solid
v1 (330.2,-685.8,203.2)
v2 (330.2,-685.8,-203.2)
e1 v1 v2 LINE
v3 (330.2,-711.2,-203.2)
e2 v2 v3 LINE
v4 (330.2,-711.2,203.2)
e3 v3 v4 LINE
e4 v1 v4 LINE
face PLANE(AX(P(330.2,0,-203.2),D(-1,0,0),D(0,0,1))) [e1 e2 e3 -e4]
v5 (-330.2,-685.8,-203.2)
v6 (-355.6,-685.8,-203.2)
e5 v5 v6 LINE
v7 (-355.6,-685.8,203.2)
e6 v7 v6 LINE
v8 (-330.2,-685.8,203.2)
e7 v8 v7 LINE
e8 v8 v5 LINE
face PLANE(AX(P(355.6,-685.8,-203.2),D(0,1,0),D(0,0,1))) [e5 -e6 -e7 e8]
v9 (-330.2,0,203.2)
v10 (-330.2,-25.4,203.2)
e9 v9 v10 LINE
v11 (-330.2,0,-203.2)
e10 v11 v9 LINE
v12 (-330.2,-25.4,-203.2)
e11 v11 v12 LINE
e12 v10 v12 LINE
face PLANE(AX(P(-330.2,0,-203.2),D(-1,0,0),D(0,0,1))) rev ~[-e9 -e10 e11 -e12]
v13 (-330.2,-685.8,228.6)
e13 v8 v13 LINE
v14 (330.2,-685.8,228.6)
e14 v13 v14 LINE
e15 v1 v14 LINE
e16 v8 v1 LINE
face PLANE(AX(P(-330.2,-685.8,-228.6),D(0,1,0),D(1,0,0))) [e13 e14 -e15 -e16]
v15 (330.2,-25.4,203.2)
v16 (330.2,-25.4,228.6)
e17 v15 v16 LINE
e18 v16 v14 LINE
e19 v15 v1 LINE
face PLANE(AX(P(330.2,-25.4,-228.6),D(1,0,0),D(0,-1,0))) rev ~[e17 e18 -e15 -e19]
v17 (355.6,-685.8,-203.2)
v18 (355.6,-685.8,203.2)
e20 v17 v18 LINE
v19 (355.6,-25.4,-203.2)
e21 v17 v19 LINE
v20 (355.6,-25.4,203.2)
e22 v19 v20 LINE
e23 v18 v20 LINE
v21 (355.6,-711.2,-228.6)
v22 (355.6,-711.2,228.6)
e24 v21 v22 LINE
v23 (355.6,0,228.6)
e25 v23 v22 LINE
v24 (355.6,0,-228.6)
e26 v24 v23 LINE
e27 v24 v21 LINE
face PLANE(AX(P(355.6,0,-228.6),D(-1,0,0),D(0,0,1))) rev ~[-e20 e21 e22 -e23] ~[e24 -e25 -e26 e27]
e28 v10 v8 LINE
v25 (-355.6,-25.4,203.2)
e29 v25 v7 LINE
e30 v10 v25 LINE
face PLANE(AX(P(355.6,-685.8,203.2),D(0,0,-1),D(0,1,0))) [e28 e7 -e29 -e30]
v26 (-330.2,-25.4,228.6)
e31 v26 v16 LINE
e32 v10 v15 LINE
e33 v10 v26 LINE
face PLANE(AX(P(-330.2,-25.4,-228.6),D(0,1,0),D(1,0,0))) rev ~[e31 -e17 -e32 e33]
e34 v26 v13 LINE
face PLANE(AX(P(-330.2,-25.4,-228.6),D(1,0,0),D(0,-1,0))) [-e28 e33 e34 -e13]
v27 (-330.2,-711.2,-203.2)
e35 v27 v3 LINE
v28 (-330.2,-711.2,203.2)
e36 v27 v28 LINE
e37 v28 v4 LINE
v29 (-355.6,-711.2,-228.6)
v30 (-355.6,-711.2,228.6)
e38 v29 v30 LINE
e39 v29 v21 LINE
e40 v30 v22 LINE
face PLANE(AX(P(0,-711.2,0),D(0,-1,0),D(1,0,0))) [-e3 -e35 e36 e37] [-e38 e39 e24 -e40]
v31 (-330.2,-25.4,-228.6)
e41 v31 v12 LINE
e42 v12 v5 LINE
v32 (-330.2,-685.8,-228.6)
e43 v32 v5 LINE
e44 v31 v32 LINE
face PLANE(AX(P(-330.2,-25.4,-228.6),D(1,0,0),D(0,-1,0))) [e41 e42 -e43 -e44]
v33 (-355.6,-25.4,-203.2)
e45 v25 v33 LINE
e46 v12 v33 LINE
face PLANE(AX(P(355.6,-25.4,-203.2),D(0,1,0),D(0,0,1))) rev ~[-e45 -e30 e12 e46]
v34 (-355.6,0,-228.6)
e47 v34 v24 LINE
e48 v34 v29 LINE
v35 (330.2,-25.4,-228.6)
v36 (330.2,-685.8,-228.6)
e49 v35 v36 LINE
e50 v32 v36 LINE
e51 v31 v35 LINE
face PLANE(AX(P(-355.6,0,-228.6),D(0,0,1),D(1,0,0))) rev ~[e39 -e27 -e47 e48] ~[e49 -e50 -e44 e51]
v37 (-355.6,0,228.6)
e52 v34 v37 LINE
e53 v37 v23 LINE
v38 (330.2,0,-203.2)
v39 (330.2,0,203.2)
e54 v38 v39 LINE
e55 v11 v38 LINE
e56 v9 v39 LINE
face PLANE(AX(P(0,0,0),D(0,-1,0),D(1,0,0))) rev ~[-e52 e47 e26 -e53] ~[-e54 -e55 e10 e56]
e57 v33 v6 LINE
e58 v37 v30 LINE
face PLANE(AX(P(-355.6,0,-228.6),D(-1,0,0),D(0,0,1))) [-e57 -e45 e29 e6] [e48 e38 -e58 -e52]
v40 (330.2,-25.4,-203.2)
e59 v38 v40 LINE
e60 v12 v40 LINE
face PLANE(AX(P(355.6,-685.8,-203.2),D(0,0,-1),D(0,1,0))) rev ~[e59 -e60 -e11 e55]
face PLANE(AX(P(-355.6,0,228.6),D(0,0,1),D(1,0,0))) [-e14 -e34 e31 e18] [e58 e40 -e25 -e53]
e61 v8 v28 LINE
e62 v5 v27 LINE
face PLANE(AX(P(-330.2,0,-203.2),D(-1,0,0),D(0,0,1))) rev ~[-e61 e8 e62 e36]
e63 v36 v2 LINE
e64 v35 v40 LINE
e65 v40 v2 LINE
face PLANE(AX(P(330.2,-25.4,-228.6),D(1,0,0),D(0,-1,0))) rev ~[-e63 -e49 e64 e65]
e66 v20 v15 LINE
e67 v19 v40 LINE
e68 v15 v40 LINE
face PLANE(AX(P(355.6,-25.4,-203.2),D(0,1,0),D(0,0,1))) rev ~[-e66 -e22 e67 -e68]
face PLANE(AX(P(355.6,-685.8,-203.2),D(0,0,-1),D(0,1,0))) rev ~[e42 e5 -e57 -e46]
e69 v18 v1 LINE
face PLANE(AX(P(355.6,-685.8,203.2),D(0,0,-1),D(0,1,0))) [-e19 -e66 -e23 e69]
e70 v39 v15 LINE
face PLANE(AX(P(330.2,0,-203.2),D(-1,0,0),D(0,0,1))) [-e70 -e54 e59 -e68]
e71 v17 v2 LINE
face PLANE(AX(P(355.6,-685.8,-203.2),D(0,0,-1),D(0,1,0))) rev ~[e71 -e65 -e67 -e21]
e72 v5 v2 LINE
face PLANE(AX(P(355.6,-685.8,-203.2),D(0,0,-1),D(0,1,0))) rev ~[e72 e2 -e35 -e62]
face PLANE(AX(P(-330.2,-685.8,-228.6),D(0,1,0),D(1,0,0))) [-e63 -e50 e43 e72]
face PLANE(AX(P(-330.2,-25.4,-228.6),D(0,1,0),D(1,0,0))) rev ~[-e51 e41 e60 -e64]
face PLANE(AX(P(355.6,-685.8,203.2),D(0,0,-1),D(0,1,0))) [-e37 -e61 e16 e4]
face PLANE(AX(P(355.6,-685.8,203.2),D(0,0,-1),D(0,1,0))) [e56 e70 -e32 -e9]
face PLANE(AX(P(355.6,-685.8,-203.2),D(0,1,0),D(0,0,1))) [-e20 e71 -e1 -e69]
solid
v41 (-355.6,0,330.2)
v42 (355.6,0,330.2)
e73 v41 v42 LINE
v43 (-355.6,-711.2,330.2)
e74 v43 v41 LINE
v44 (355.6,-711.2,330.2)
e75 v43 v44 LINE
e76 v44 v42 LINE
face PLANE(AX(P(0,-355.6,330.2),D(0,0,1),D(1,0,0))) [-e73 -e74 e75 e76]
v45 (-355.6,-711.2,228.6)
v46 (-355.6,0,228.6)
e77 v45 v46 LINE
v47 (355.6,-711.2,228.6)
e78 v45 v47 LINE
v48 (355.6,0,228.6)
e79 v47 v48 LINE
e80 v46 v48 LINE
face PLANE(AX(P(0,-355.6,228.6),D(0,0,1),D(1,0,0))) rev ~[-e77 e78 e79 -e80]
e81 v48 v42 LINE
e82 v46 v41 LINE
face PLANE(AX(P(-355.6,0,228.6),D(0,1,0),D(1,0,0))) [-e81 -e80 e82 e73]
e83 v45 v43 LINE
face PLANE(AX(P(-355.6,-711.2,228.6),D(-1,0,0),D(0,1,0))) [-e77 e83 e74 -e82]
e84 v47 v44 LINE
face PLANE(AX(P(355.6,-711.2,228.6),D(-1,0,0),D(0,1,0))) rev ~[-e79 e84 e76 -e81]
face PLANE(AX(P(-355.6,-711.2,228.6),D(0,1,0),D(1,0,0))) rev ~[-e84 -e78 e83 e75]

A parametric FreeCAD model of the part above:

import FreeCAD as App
import Part
import Sketcher
Q = App.Units.Quantity

doc = App.newDocument("Part")
params = doc.addObject("Spreadsheet::Sheet", "Params")
for row, (alias, value) in enumerate([
    ("sketch1_width", "28 in"),
    ("sketch1_width2", "26 in"),
    ("sketch1_height", "18 in"),
    ("sketch1_height2", "16 in"),
    ("pad1_length", "28 in"),
    ("sketch2_width", "28 in"),
    ("sketch2_width2", "26 in"),
    ("sketch2_height", "18 in"),
    ("sketch2_height2", "16 in"),
    ("pad2_length", "28 in"),
    ("sketch3_width", "26 in"),
    ("sketch3_height", "16 in"),
    ("pad3_length", "711.201 mm"),
    ("sketch4_width", "26 in"),
    ("pad4_length", "18 in"),
    ("sketch5_width", "28 in"),
    ("pad5_length", "4 in"),
], start=1):
    params.set(f"A{row}", alias)
    params.set(f"B{row}", "=" + value)
    params.setAlias(f"B{row}", alias)

body = doc.addObject("PartDesign::Body", "Body")

# Sketch on XZ plane
sketch1 = body.newObject("Sketcher::SketchObject", "Sketch")
sketch1.AttachmentSupport = (doc.getObject("XZ_Plane"), [""])
sketch1.MapMode = "FlatFace"
sketch1.addGeometry([
    Part.LineSegment(App.Vector(-356, 229, 0), App.Vector(-356, -229, 0)),  # 0
    Part.LineSegment(App.Vector(-356, -229, 0), App.Vector(356, -229, 0)),  # 1
    Part.LineSegment(App.Vector(356, -229, 0), App.Vector(356, 229, 0)),  # 2
    Part.LineSegment(App.Vector(356, 229, 0), App.Vector(-356, 229, 0)),  # 3
    Part.LineSegment(App.Vector(330, -203, 0), App.Vector(-330, -203, 0)),  # 4
    Part.LineSegment(App.Vector(-330, -203, 0), App.Vector(-330, 203, 0)),  # 5
    Part.LineSegment(App.Vector(-330, 203, 0), App.Vector(330, 203, 0)),  # 6
    Part.LineSegment(App.Vector(330, 203, 0), App.Vector(330, -203, 0)),  # 7
], False)
sketch1.addConstraint([
    Sketcher.Constraint("Coincident", 0, 2, 1, 1),
    Sketcher.Constraint("Coincident", 1, 2, 2, 1),
    Sketcher.Constraint("Coincident", 2, 2, 3, 1),
    Sketcher.Constraint("Coincident", 3, 2, 0, 1),
    Sketcher.Constraint("Coincident", 4, 2, 5, 1),
    Sketcher.Constraint("Coincident", 5, 2, 6, 1),
    Sketcher.Constraint("Coincident", 6, 2, 7, 1),
    Sketcher.Constraint("Coincident", 7, 2, 4, 1),
    Sketcher.Constraint("Vertical", 0),
    Sketcher.Constraint("Horizontal", 1),
    Sketcher.Constraint("Vertical", 2),
    Sketcher.Constraint("Horizontal", 3),
    Sketcher.Constraint("Horizontal", 4),
    Sketcher.Constraint("Vertical", 5),
    Sketcher.Constraint("Horizontal", 6),
    Sketcher.Constraint("Vertical", 7),
    Sketcher.Constraint("Symmetric", 0, 2, 2, 2, -1, 1),
    Sketcher.Constraint("Symmetric", 4, 2, 6, 2, -1, 1),
    Sketcher.Constraint("DistanceX", 1, 1, 1, 2, Q("28 in")),
    Sketcher.Constraint("DistanceX", 4, 2, 4, 1, Q("26 in")),
    Sketcher.Constraint("DistanceY", 0, 2, 0, 1, Q("18 in")),
    Sketcher.Constraint("DistanceY", 5, 1, 5, 2, Q("16 in")),
])
sketch1.setExpression("Constraints[18]", "Params.sketch1_width")
sketch1.setExpression("Constraints[19]", "Params.sketch1_width2")
sketch1.setExpression("Constraints[20]", "Params.sketch1_height")
sketch1.setExpression("Constraints[21]", "Params.sketch1_height2")
pad1 = body.newObject("PartDesign::Pad", "Pad")
pad1.Profile = sketch1
pad1.setExpression("Length", "Params.pad1_length")
body2 = doc.addObject("PartDesign::Body", "Body001")

# Sketch on XZ plane
sketch2 = body2.newObject("Sketcher::SketchObject", "Sketch001")
sketch2.AttachmentSupport = (doc.getObject("XZ_Plane001"), [""])
sketch2.MapMode = "FlatFace"
sketch2.addGeometry([
    Part.LineSegment(App.Vector(-356, 229, 0), App.Vector(-356, -229, 0)),  # 0
    Part.LineSegment(App.Vector(-356, -229, 0), App.Vector(356, -229, 0)),  # 1
    Part.LineSegment(App.Vector(356, -229, 0), App.Vector(356, 229, 0)),  # 2
    Part.LineSegment(App.Vector(356, 229, 0), App.Vector(-356, 229, 0)),  # 3
    Part.LineSegment(App.Vector(330, -203, 0), App.Vector(-330, -203, 0)),  # 4
    Part.LineSegment(App.Vector(-330, -203, 0), App.Vector(-330, 203, 0)),  # 5
    Part.LineSegment(App.Vector(-330, 203, 0), App.Vector(330, 203, 0)),  # 6
    Part.LineSegment(App.Vector(330, 203, 0), App.Vector(330, -203, 0)),  # 7
], False)
sketch2.addConstraint([
    Sketcher.Constraint("Coincident", 0, 2, 1, 1),
    Sketcher.Constraint("Coincident", 1, 2, 2, 1),
    Sketcher.Constraint("Coincident", 2, 2, 3, 1),
    Sketcher.Constraint("Coincident", 3, 2, 0, 1),
    Sketcher.Constraint("Coincident", 4, 2, 5, 1),
    Sketcher.Constraint("Coincident", 5, 2, 6, 1),
    Sketcher.Constraint("Coincident", 6, 2, 7, 1),
    Sketcher.Constraint("Coincident", 7, 2, 4, 1),
    Sketcher.Constraint("Vertical", 0),
    Sketcher.Constraint("Horizontal", 1),
    Sketcher.Constraint("Vertical", 2),
    Sketcher.Constraint("Horizontal", 3),
    Sketcher.Constraint("Horizontal", 4),
    Sketcher.Constraint("Vertical", 5),
    Sketcher.Constraint("Horizontal", 6),
    Sketcher.Constraint("Vertical", 7),
    Sketcher.Constraint("Symmetric", 0, 2, 2, 2, -1, 1),
    Sketcher.Constraint("Symmetric", 4, 2, 6, 2, -1, 1),
    Sketcher.Constraint("DistanceX", 1, 1, 1, 2, Q("28 in")),
    Sketcher.Constraint("DistanceX", 4, 2, 4, 1, Q("26 in")),
    Sketcher.Constraint("DistanceY", 0, 2, 0, 1, Q("18 in")),
    Sketcher.Constraint("DistanceY", 5, 1, 5, 2, Q("16 in")),
])
sketch2.setExpression("Constraints[18]", "Params.sketch2_width")
sketch2.setExpression("Constraints[19]", "Params.sketch2_width2")
sketch2.setExpression("Constraints[20]", "Params.sketch2_height")
sketch2.setExpression("Constraints[21]", "Params.sketch2_height2")
pad2 = body2.newObject("PartDesign::Pad", "Pad001")
pad2.Profile = sketch2
pad2.setExpression("Length", "Params.pad2_length")
body3 = doc.addObject("PartDesign::Body", "Body002")

# Sketch on YZ plane
sketch3 = body3.newObject("Sketcher::SketchObject", "Sketch002")
sketch3.AttachmentSupport = (doc.getObject("YZ_Plane002"), [""])
sketch3.MapMode = "FlatFace"
sketch3.AttachmentOffset = App.Placement(App.Vector(0, 0, 14 * 25.4), App.Rotation())
sketch3.addGeometry([
    Part.LineSegment(App.Vector(-686, 203, 0), App.Vector(-686, -203, 0)),
    Part.LineSegment(App.Vector(-686, -203, 0), App.Vector(-25, -203, 0)),
    Part.LineSegment(App.Vector(-25, -203, 0), App.Vector(-25, 203, 0)),
    Part.LineSegment(App.Vector(-25, 203, 0), App.Vector(-686, 203, 0)),
], False)
sketch3.addConstraint([
    Sketcher.Constraint("Coincident", 0, 2, 1, 1),
    Sketcher.Constraint("Coincident", 1, 2, 2, 1),
    Sketcher.Constraint("Coincident", 2, 2, 3, 1),
    Sketcher.Constraint("Coincident", 3, 2, 0, 1),
    Sketcher.Constraint("Vertical", 0),
    Sketcher.Constraint("Horizontal", 1),
    Sketcher.Constraint("Vertical", 2),
    Sketcher.Constraint("Horizontal", 3),
    Sketcher.Constraint("DistanceX", 1, 1, 1, 2, Q("26 in")),
    Sketcher.Constraint("DistanceY", 0, 2, 0, 1, Q("16 in")),
    Sketcher.Constraint("DistanceX", 0, 2, -1, 1, Q("27 in")),
    Sketcher.Constraint("DistanceY", 0, 2, -1, 1, Q("8 in")),
])
sketch3.setExpression("Constraints[8]", "Params.sketch3_width")
sketch3.setExpression("Constraints[9]", "Params.sketch3_height")
pad3 = body3.newObject("PartDesign::Pad", "Pad002")
pad3.Profile = sketch3
pad3.setExpression("Length", "Params.pad3_length")
pad3.Reversed = True
doc.recompute()

body4 = doc.addObject("PartDesign::Body", "Body003")
body4.BaseFeature = body3
boolean = body.newObject("PartDesign::Boolean", "Boolean")
boolean.Type = "Cut"
boolean.addObjects([body4])
doc.recompute()

boolean2 = body2.newObject("PartDesign::Boolean", "Boolean001")
boolean2.Type = "Cut"
boolean2.addObjects([body3])
body5 = doc.addObject("PartDesign::Body", "Body004")

# Sketch on XY plane
sketch4 = body5.newObject("Sketcher::SketchObject", "Sketch003")
sketch4.AttachmentSupport = (doc.getObject("XY_Plane004"), [""])
sketch4.MapMode = "FlatFace"
sketch4.AttachmentOffset = App.Placement(App.Vector(0, 0, -9 * 25.4), App.Rotation())
sketch4.addGeometry([
    Part.LineSegment(App.Vector(-330, -686, 0), App.Vector(-330, -25, 0)),
    Part.LineSegment(App.Vector(-330, -25, 0), App.Vector(330, -25, 0)),
    Part.LineSegment(App.Vector(330, -25, 0), App.Vector(330, -686, 0)),
    Part.LineSegment(App.Vector(330, -686, 0), App.Vector(-330, -686, 0)),
], False)
sketch4.addConstraint([
    Sketcher.Constraint("Coincident", 0, 2, 1, 1),
    Sketcher.Constraint("Coincident", 1, 2, 2, 1),
    Sketcher.Constraint("Coincident", 2, 2, 3, 1),
    Sketcher.Constraint("Coincident", 3, 2, 0, 1),
    Sketcher.Constraint("Vertical", 0),
    Sketcher.Constraint("Horizontal", 1),
    Sketcher.Constraint("Vertical", 2),
    Sketcher.Constraint("Horizontal", 3),
    Sketcher.Constraint("Equal", 3, 0),
    Sketcher.Constraint("DistanceX", 1, 1, 1, 2, Q("26 in")),
    Sketcher.Constraint("DistanceX", 0, 2, -1, 1, Q("13 in")),
    Sketcher.Constraint("DistanceY", 0, 2, -1, 1, Q("1 in")),
])
sketch4.setExpression("Constraints[9]", "Params.sketch4_width")
pad4 = body5.newObject("PartDesign::Pad", "Pad003")
pad4.Profile = sketch4
pad4.setExpression("Length", "Params.pad4_length")
doc.recompute()

body6 = doc.addObject("PartDesign::Body", "Body005")
body6.BaseFeature = body5
boolean3 = body.newObject("PartDesign::Boolean", "Boolean002")
boolean3.Type = "Cut"
boolean3.addObjects([body6])
doc.recompute()

boolean4 = body2.newObject("PartDesign::Boolean", "Boolean003")
boolean4.Type = "Cut"
boolean4.addObjects([body5])
body7 = doc.addObject("PartDesign::Body", "Body006")

# Sketch on XY plane
sketch5 = body7.newObject("Sketcher::SketchObject", "Sketch004")
sketch5.AttachmentSupport = (doc.getObject("XY_Plane006"), [""])
sketch5.MapMode = "FlatFace"
sketch5.AttachmentOffset = App.Placement(App.Vector(0, 0, 9 * 25.4), App.Rotation())
sketch5.addGeometry([
    Part.LineSegment(App.Vector(-356, 0, 0), App.Vector(-356, -711, 0)),
    Part.LineSegment(App.Vector(-356, -711, 0), App.Vector(356, -711, 0)),
    Part.LineSegment(App.Vector(356, -711, 0), App.Vector(356, 0, 0)),
    Part.LineSegment(App.Vector(356, 0, 0), App.Vector(-356, 0, 0)),
], False)
sketch5.addConstraint([
    Sketcher.Constraint("Coincident", 0, 2, 1, 1),
    Sketcher.Constraint("Coincident", 1, 2, 2, 1),
    Sketcher.Constraint("Coincident", 2, 2, 3, 1),
    Sketcher.Constraint("Coincident", 3, 2, 0, 1),
    Sketcher.Constraint("Vertical", 0),
    Sketcher.Constraint("Horizontal", 1),
    Sketcher.Constraint("Vertical", 2),
    Sketcher.Constraint("Horizontal", 3),
    Sketcher.Constraint("Symmetric", 2, 2, 3, 2, -1, 1),
    Sketcher.Constraint("Equal", 3, 0),
    Sketcher.Constraint("DistanceX", 1, 1, 1, 2, Q("28 in")),
])
sketch5.setExpression("Constraints[10]", "Params.sketch5_width")
pad5 = body7.newObject("PartDesign::Pad", "Pad004")
pad5.Profile = sketch5
pad5.setExpression("Length", "Params.pad5_length")
body.Visibility = False

doc.recompute()
